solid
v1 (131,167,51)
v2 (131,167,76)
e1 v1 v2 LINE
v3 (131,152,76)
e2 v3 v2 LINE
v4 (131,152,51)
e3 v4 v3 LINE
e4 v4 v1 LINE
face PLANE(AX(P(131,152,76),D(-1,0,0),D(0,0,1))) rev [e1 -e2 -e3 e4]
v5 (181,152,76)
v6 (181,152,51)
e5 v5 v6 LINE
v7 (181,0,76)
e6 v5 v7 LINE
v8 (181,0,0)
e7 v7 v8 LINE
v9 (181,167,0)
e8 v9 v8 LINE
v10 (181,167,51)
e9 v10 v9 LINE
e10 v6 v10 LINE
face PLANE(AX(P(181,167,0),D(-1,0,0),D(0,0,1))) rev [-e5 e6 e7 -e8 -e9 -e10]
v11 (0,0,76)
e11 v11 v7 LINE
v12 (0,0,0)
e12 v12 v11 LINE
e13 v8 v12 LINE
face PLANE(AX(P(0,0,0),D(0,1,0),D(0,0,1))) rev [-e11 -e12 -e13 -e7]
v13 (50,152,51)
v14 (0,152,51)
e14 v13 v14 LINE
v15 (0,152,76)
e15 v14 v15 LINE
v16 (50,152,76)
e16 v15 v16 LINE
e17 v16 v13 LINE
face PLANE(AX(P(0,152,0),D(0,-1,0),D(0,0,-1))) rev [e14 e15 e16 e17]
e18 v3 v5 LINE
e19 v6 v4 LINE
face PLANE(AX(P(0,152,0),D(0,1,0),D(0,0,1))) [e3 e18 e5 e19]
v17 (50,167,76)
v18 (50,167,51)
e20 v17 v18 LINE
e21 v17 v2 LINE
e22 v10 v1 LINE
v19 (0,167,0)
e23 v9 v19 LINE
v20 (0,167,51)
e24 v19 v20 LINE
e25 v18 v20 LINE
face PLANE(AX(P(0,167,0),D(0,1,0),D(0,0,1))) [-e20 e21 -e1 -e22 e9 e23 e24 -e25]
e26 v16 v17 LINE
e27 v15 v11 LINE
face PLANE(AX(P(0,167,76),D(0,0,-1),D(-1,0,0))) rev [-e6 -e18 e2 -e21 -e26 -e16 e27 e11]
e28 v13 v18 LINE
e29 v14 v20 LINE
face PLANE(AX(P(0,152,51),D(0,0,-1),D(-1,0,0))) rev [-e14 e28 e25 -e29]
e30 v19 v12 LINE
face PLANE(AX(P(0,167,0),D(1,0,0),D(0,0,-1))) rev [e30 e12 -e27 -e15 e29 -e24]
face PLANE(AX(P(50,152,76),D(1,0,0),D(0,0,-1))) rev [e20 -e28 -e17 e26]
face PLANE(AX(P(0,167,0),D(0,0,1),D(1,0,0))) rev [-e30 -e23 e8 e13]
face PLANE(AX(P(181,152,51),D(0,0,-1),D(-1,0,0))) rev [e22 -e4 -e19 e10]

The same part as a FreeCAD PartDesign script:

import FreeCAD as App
import Part
import Sketcher

doc = App.newDocument("Part")
body = doc.addObject("PartDesign::Body", "Body")

# Sketch on XZ plane
sketch1 = body.newObject("Sketcher::SketchObject", "Sketch")
sketch1.AttachmentSupport = (doc.getObject("XZ_Plane"), [""])
sketch1.MapMode = "FlatFace"
sketch1.addGeometry([
    Part.LineSegment(App.Vector(0, 0, 0), App.Vector(0, 76, 0)),
    Part.LineSegment(App.Vector(0, 76, 0), App.Vector(181, 76, 0)),
    Part.LineSegment(App.Vector(181, 76, 0), App.Vector(181, 0, 0)),
    Part.LineSegment(App.Vector(181, 0, 0), App.Vector(0, 0, 0)),
], False)
sketch1.addConstraint([
    Sketcher.Constraint("Coincident", 0, 2, 1, 1),
    Sketcher.Constraint("Coincident", 1, 2, 2, 1),
    Sketcher.Constraint("Coincident", 2, 2, 3, 1),
    Sketcher.Constraint("Coincident", 3, 2, 0, 1),
    Sketcher.Constraint("Vertical", 0),
    Sketcher.Constraint("Horizontal", 1),
    Sketcher.Constraint("Vertical", 2),
    Sketcher.Constraint("Horizontal", 3),
    Sketcher.Constraint("Coincident", 3, 2, -1, 1),
    Sketcher.Constraint("DistanceX", 1, 1, 1, 2, 181.0),
    Sketcher.Constraint("DistanceY", 0, 1, 0, 2, 76.0),
])
pad1 = body.newObject("PartDesign::Pad", "Pad")
pad1.Profile = sketch1
pad1.Length = 167
pad1.Reversed = True

# Sketch on XZ plane
sketch2 = body.newObject("Sketcher::SketchObject", "Sketch001")
sketch2.AttachmentSupport = (doc.getObject("XZ_Plane"), [""])
sketch2.MapMode = "FlatFace"
sketch2.AttachmentOffset = App.Placement(App.Vector(0, 0, -167), App.Rotation())
sketch2.addGeometry([
    Part.LineSegment(App.Vector(131, 51, 0), App.Vector(131, 76, 0)),  # 0
    Part.LineSegment(App.Vector(131, 76, 0), App.Vector(181, 76, 0)),  # 1
    Part.LineSegment(App.Vector(181, 76, 0), App.Vector(181, 51, 0)),  # 2
    Part.LineSegment(App.Vector(181, 51, 0), App.Vector(131, 51, 0)),  # 3
    Part.LineSegment(App.Vector(0, 51, 0), App.Vector(0, 76, 0)),  # 4
    Part.LineSegment(App.Vector(0, 76, 0), App.Vector(50, 76, 0)),  # 5
    Part.LineSegment(App.Vector(50, 76, 0), App.Vector(50, 51, 0)),  # 6
    Part.LineSegment(App.Vector(50, 51, 0), App.Vector(0, 51, 0)),  # 7
], False)
sketch2.addConstraint([
    Sketcher.Constraint("Coincident", 0, 2, 1, 1),
    Sketcher.Constraint("Coincident", 1, 2, 2, 1),
    Sketcher.Constraint("Coincident", 2, 2, 3, 1),
    Sketcher.Constraint("Coincident", 3, 2, 0, 1),
    Sketcher.Constraint("Coincident", 4, 2, 5, 1),
    Sketcher.Constraint("Coincident", 5, 2, 6, 1),
    Sketcher.Constraint("Coincident", 6, 2, 7, 1),
    Sketcher.Constraint("Coincident", 7, 2, 4, 1),
    Sketcher.Constraint("Vertical", 0),
    Sketcher.Constraint("Horizontal", 1),
    Sketcher.Constraint("Vertical", 2),
    Sketcher.Constraint("Horizontal", 3),
    Sketcher.Constraint("Vertical", 4),
    Sketcher.Constraint("Horizontal", 5),
    Sketcher.Constraint("Vertical", 6),
    Sketcher.Constraint("Horizontal", 7),
    Sketcher.Constraint("PointOnObject", 4, 2, -2),
    Sketcher.Constraint("Horizontal", 1, 2, 4, 2),
    Sketcher.Constraint("Horizontal", 3, 2, 6, 2),
    Sketcher.Constraint("Equal", 3, 5),
    Sketcher.Constraint("DistanceX", 1, 1, 1, 2, 50.0),
    Sketcher.Constraint("DistanceY", 0, 1, 0, 2, 25.0),
    Sketcher.Constraint("DistanceX", -1, 1, 0, 2, 131.0),
    Sketcher.Constraint("DistanceY", -1, 1, 0, 2, 76.0),
])
pocket1 = body.newObject("PartDesign::Pocket", "Pocket")
pocket1.Profile = sketch2
pocket1.Length = 15
pocket1.Reversed = True

doc.recompute()
